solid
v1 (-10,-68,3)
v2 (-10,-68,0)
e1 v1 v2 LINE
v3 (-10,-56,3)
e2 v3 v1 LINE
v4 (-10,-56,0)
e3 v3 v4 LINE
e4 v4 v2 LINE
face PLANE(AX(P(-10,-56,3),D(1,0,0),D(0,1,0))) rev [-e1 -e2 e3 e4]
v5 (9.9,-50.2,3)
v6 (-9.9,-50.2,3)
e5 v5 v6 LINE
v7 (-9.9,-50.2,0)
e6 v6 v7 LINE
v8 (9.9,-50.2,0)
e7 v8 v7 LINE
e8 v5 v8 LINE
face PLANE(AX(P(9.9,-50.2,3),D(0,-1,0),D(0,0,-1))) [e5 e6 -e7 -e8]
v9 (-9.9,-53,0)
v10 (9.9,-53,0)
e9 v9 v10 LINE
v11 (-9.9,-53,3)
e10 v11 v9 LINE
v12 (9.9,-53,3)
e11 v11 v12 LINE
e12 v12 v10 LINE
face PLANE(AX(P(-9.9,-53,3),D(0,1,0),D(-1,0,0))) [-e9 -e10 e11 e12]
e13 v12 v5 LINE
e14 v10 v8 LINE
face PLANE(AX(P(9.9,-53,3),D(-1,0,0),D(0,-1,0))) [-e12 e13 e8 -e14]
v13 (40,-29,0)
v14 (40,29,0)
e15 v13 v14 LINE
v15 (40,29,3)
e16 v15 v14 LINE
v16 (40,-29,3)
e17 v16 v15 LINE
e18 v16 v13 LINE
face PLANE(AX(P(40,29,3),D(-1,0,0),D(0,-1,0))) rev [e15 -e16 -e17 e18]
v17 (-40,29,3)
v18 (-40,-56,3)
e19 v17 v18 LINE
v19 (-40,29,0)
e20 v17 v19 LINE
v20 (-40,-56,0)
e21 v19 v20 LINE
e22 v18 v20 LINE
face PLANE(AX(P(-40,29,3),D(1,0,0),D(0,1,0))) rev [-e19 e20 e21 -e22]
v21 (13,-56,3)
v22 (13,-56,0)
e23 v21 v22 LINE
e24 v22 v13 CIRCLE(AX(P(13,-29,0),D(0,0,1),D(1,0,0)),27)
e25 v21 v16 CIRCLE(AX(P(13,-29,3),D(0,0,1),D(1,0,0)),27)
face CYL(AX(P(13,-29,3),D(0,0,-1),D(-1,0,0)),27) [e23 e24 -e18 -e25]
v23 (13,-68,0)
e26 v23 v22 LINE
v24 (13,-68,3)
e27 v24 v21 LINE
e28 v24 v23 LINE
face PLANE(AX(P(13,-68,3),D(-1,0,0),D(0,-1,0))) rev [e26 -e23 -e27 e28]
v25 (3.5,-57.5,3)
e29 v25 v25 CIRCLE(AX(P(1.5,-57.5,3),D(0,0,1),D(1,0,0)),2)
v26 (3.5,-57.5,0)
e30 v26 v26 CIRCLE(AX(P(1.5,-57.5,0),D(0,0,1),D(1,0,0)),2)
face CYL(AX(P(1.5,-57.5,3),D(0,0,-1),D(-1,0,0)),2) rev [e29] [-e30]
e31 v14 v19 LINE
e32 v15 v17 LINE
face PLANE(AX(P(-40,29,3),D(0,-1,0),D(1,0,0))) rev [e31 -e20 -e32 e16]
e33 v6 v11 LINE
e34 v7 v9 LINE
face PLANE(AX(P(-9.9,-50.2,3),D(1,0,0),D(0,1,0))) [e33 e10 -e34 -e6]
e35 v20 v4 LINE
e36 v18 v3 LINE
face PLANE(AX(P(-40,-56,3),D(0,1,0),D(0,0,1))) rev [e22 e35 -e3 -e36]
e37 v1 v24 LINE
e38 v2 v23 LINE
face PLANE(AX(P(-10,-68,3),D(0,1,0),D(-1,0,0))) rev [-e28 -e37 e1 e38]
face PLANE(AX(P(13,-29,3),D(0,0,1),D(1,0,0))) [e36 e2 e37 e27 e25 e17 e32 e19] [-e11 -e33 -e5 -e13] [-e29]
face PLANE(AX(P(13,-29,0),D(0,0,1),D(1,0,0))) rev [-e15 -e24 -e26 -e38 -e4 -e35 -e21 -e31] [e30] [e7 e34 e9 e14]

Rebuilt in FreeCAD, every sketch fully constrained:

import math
import FreeCAD as App
import Part
import Sketcher
Q = App.Units.Quantity

doc = App.newDocument("Part")
body = doc.addObject("PartDesign::Body", "Body")

sketch1 = body.newObject("Sketcher::SketchObject", "Sketch")
sketch1.AttachmentSupport = (doc.getObject("XY_Plane"), [""])
sketch1.MapMode = "FlatFace"
sketch1.addGeometry(Part.LineSegment(App.Vector(40, 29, 0), App.Vector(-40, 29, 0)), False)
sketch1.addGeometry(Part.LineSegment(App.Vector(-40, 29, 0), App.Vector(-40, -56, 0)), False)
sketch1.addGeometry(Part.LineSegment(App.Vector(-40, -56, 0), App.Vector(-10, -56, 0)), False)
sketch1.addGeometry(Part.LineSegment(App.Vector(-10, -56, 0), App.Vector(-10, -68, 0)), False)
sketch1.addGeometry(Part.LineSegment(App.Vector(-10, -68, 0), App.Vector(13, -68, 0)), False)
sketch1.addGeometry(Part.LineSegment(App.Vector(13, -68, 0), App.Vector(13, -56, 0)), False)
sketch1.addGeometry(Part.ArcOfCircle(Part.Circle(App.Vector(13, -29, 0), App.Vector(0, 0, 1), 27), math.radians(-90), math.radians(0)), False)
sketch1.addGeometry(Part.LineSegment(App.Vector(40, -29, 0), App.Vector(40, 29, 0)), False)
sketch1.addGeometry(Part.Circle(App.Vector(1.5, -57.5, 0), App.Vector(0, 0, 1), 2), False)
sketch1.addGeometry(Part.LineSegment(App.Vector(-9.9, -53, 0), App.Vector(-9.9, -50.2, 0)), False)
sketch1.addGeometry(Part.LineSegment(App.Vector(-9.9, -50.2, 0), App.Vector(9.9, -50.2, 0)), False)
sketch1.addGeometry(Part.LineSegment(App.Vector(9.9, -50.2, 0), App.Vector(9.9, -53, 0)), False)
sketch1.addGeometry(Part.LineSegment(App.Vector(9.9, -53, 0), App.Vector(-9.9, -53, 0)), False)
sketch1.addConstraint(Sketcher.Constraint("Coincident", 0, 2, 1, 1))
sketch1.addConstraint(Sketcher.Constraint("Coincident", 1, 2, 2, 1))
sketch1.addConstraint(Sketcher.Constraint("Coincident", 2, 2, 3, 1))
sketch1.addConstraint(Sketcher.Constraint("Coincident", 3, 2, 4, 1))
sketch1.addConstraint(Sketcher.Constraint("Coincident", 4, 2, 5, 1))
sketch1.addConstraint(Sketcher.Constraint("Coincident", 5, 2, 6, 1))
sketch1.addConstraint(Sketcher.Constraint("Tangent", 6, 2, 7, 1))
sketch1.addConstraint(Sketcher.Constraint("Coincident", 7, 2, 0, 1))
sketch1.addConstraint(Sketcher.Constraint("Coincident", 9, 2, 10, 1))
sketch1.addConstraint(Sketcher.Constraint("Coincident", 10, 2, 11, 1))
sketch1.addConstraint(Sketcher.Constraint("Coincident", 11, 2, 12, 1))
sketch1.addConstraint(Sketcher.Constraint("Coincident", 12, 2, 9, 1))
sketch1.addConstraint(Sketcher.Constraint("Horizontal", 0))
sketch1.addConstraint(Sketcher.Constraint("Vertical", 1))
sketch1.addConstraint(Sketcher.Constraint("Horizontal", 2))
sketch1.addConstraint(Sketcher.Constraint("Vertical", 3))
sketch1.addConstraint(Sketcher.Constraint("Horizontal", 4))
sketch1.addConstraint(Sketcher.Constraint("Vertical", 5))
sketch1.addConstraint(Sketcher.Constraint("Vertical", 7))
sketch1.addConstraint(Sketcher.Constraint("Vertical", 9))
sketch1.addConstraint(Sketcher.Constraint("Horizontal", 10))
sketch1.addConstraint(Sketcher.Constraint("Vertical", 11))
sketch1.addConstraint(Sketcher.Constraint("Horizontal", 12))
sketch1.addConstraint(Sketcher.Constraint("Symmetric", 0, 2, 6, 2, -1, 1))
sketch1.addConstraint(Sketcher.Constraint("Horizontal", 2, 2, 5, 2))
sketch1.addConstraint(Sketcher.Constraint("Vertical", 6, 3, 4, 2))
sketch1.addConstraint(Sketcher.Constraint("Diameter", 8, Q("4 mm")))
sketch1.addConstraint(Sketcher.Constraint("Radius", 6, Q("27 mm")))
sketch1.addConstraint(Sketcher.Constraint("DistanceX", 0, 2, 0, 1, Q("80 mm")))
sketch1.addConstraint(Sketcher.Constraint("DistanceX", 2, 1, 2, 2, Q("30 mm")))
sketch1.addConstraint(Sketcher.Constraint("DistanceY", 1, 2, 1, 1, Q("85 mm")))
sketch1.addConstraint(Sketcher.Constraint("DistanceY", 3, 2, 3, 1, Q("12 mm")))
sketch1.addConstraint(Sketcher.Constraint("DistanceX", 10, 1, 10, 2, Q("19.8 mm")))
sketch1.addConstraint(Sketcher.Constraint("DistanceY", 9, 1, 9, 2, Q("2.8 mm")))
sketch1.addConstraint(Sketcher.Constraint("DistanceY", 11, 2, -1, 1, Q("53 mm")))
sketch1.addConstraint(Sketcher.Constraint("DistanceX", -1, 1, 8, 3, Q("1.5 mm")))
sketch1.addConstraint(Sketcher.Constraint("DistanceY", 8, 3, -1, 1, Q("57.5 mm")))
sketch1.addConstraint(Sketcher.Constraint("DistanceX", 9, 2, -1, 1, Q("9.9 mm")))
pad1 = body.newObject("PartDesign::Pad", "Pad")
pad1.Profile = sketch1
pad1.Length = 3

doc.recompute()
